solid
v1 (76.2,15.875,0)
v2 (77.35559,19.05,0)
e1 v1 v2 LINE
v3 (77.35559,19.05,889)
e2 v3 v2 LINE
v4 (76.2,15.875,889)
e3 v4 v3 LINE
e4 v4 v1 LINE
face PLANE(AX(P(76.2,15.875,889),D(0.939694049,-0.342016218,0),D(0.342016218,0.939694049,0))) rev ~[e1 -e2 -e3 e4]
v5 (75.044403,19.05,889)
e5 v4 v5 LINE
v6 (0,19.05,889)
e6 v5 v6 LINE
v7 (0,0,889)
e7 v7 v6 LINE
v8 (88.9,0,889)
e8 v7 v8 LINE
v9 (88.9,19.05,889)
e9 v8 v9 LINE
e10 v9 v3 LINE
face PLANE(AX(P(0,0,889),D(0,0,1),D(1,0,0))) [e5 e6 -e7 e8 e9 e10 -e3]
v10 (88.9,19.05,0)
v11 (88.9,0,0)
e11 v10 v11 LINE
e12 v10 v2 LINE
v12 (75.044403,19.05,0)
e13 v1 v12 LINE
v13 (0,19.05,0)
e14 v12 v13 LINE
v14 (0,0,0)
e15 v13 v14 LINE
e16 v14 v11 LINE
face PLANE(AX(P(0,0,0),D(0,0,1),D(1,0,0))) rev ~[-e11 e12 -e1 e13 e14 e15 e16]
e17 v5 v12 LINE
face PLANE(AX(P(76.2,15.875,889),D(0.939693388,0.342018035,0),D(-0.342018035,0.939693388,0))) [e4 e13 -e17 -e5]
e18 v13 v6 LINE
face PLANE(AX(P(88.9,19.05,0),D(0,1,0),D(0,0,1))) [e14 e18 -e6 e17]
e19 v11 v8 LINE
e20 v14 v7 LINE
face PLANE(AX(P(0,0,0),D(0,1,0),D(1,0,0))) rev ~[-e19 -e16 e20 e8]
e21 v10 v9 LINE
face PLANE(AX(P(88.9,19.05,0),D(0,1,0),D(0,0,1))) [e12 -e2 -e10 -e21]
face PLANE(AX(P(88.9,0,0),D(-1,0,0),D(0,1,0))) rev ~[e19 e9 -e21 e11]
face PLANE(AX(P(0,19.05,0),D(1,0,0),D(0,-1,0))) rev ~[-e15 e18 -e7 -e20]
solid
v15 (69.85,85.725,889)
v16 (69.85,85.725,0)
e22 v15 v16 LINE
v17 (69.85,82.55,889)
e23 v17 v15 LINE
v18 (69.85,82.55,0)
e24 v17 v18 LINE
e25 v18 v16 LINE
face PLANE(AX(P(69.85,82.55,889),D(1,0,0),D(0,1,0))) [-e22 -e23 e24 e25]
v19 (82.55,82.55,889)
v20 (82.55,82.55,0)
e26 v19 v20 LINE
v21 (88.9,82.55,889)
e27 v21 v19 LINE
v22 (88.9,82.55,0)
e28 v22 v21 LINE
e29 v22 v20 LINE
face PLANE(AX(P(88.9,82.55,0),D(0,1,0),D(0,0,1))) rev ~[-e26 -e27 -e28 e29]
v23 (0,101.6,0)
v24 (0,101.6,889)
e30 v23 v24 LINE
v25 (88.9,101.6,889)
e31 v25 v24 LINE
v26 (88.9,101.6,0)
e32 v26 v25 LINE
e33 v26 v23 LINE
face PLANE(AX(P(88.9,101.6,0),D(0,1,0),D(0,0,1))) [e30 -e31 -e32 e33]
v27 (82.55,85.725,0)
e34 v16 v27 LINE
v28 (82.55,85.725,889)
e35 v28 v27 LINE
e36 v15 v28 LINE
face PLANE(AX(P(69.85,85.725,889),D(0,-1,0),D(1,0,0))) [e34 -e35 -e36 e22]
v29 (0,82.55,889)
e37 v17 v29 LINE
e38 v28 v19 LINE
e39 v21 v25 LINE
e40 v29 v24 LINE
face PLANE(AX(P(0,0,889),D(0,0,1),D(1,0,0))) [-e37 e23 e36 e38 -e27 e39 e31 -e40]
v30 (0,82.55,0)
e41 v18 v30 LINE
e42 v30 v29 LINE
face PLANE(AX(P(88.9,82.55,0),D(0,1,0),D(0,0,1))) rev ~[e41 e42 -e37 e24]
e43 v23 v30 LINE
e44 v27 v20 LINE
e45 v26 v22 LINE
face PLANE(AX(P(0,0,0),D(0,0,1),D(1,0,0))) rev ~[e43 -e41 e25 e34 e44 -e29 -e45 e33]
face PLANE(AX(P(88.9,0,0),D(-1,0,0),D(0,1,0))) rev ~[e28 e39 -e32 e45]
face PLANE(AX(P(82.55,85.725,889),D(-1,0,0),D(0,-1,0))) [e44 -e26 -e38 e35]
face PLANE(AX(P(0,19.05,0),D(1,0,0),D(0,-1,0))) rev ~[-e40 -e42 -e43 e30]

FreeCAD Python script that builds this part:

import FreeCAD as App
import Part
import Sketcher
from FreeCAD import Vector
Q = App.Units.Quantity


def add_polygon(sketch, points):
    """Adds a closed chain of lines whose ends are joined by coincident constraints."""
    first, n = sketch.GeometryCount, len(points)
    for a, b in zip(points, points[1:] + points[:1]):
        sketch.addGeometry(Part.LineSegment(App.Vector(*a, 0), App.Vector(*b, 0)), False)
    for i in range(n):
        sketch.addConstraint(Sketcher.Constraint("Coincident", first + i, 2, first + (i + 1) % n, 1))

doc = App.newDocument("Part")
body = doc.addObject("PartDesign::Body", "Body")
body.AllowCompound = True

# Sketch on XY plane
sketch1 = doc.addObject("Sketcher::SketchObject", "Sketch")
body.addObject(sketch1)
sketch1.AttachmentSupport = (doc.XY_Plane, [""])
sketch1.MapMode = "FlatFace"
add_polygon(sketch1, [(0, 19), (0, 0), (89, 0), (89, 19)])  # lines 0-3
sketch1.addConstraint([
    Sketcher.Constraint("Vertical", 0),
    Sketcher.Constraint("Horizontal", 1),
    Sketcher.Constraint("Vertical", 2),
    Sketcher.Constraint("Horizontal", 3),
    Sketcher.Constraint("Coincident", 0, 2, -1, 1),
    Sketcher.Constraint("DistanceX", 1, 1, 1, 2, Q("3.5 in")),
    Sketcher.Constraint("DistanceY", 0, 2, 0, 1, Q("0.75 in")),
])
pad1 = doc.addObject("PartDesign::Pad", "Pad")
body.addObject(pad1)
pad1.Profile = sketch1
pad1.Length = Q("35 in")

# Sketch on XZ plane
sketch2 = doc.addObject("Sketcher::SketchObject", "Sketch001")
body.addObject(sketch2)
sketch2.AttachmentSupport = (doc.XZ_Plane, [""])
sketch2.MapMode = "FlatFace"
sketch2.AttachmentOffset = App.Placement(Vector(0, 0, -0.75 * 25.4), App.Rotation())
add_polygon(sketch2, [(89, 889), (89, 0), (0, 0), (0, 889)])  # lines 0-3
sketch2.addConstraint([
    Sketcher.Constraint("Vertical", 0),
    Sketcher.Constraint("Horizontal", 1),
    Sketcher.Constraint("Vertical", 2),
    Sketcher.Constraint("Horizontal", 3),
    Sketcher.Constraint("Coincident", 1, 2, -1, 1),
    Sketcher.Constraint("DistanceY", 0, 2, 0, 1, Q("35 in")),
    Sketcher.Constraint("DistanceX", 1, 2, 1, 1, Q("3.5 in")),
])
pad2 = doc.addObject("PartDesign::Pad", "Pad001")
body.addObject(pad2)
pad2.Profile = sketch2
pad2.Length = Q("5 in")
pad2.Reversed = True

# Sketch on YZ plane
sketch3 = doc.addObject("Sketcher::SketchObject", "Sketch002")
body.addObject(sketch3)
sketch3.AttachmentSupport = (doc.YZ_Plane, [""])
sketch3.MapMode = "FlatFace"
sketch3.AttachmentOffset = App.Placement(Vector(0, 0, 3.5 * 25.4), App.Rotation())
add_polygon(sketch3, [(19, 889), (19, 0), (83, 0), (83, 889)])  # lines 0-3
add_polygon(sketch3, [(102, 889), (102, 0), (146, 0), (146, 889)])  # lines 4-7
sketch3.addConstraint([
    Sketcher.Constraint("Vertical", 0),
    Sketcher.Constraint("Horizontal", 1),
    Sketcher.Constraint("Vertical", 2),
    Sketcher.Constraint("Horizontal", 3),
    Sketcher.Constraint("Vertical", 4),
    Sketcher.Constraint("Horizontal", 5),
    Sketcher.Constraint("Vertical", 6),
    Sketcher.Constraint("Horizontal", 7),
    Sketcher.Constraint("PointOnObject", 0, 2, -1),
    Sketcher.Constraint("PointOnObject", 4, 2, -1),
    Sketcher.Constraint("Horizontal", 3, 2, 6, 2),
    Sketcher.Constraint("DistanceY", 0, 2, 0, 1, Q("35 in")),
    Sketcher.Constraint("DistanceX", -1, 1, 4, 2, Q("4 in")),
    Sketcher.Constraint("DistanceX", -1, 1, 0, 2, Q("0.75 in")),
    Sketcher.Constraint("DistanceX", 1, 2, 4, 2, Q("0.75 in")),
    Sketcher.Constraint("DistanceX", 0, 2, 5, 2, Q("5 in")),
])
pocket1 = doc.addObject("PartDesign::Pocket", "Pocket")
body.addObject(pocket1)
pocket1.Profile = sketch3
pocket1.Length = Q("5 in")

# Sketch on XY plane
sketch4 = doc.addObject("Sketcher::SketchObject", "Sketch003")
body.addObject(sketch4)
sketch4.AttachmentSupport = (doc.XY_Plane, [""])
sketch4.MapMode = "FlatFace"
sketch4.AttachmentOffset = App.Placement(Vector(0, 0, 35 * 25.4), App.Rotation())
add_polygon(sketch4, [(69.8, 85.7), (69.8, 82.5), (82.5, 82.5), (82.5, 85.7)])  # lines 0-3
sketch4.addConstraint([
    Sketcher.Constraint("Vertical", 0),
    Sketcher.Constraint("Horizontal", 1),
    Sketcher.Constraint("Vertical", 2),
    Sketcher.Constraint("Horizontal", 3),
    Sketcher.Constraint("DistanceX", 1, 1, 1, 2, Q("0.5 in")),
    Sketcher.Constraint("DistanceY", 0, 2, 0, 1, Q("0.125 in")),
    Sketcher.Constraint("DistanceX", -1, 1, 0, 2, Q("2.75 in")),
    Sketcher.Constraint("DistanceY", -1, 1, 0, 2, Q("3.25 in")),
])
pocket2 = doc.addObject("PartDesign::Pocket", "Pocket001")
body.addObject(pocket2)
pocket2.Profile = sketch4
pocket2.Type = "ThroughAll"

# Sketch on XY plane
sketch5 = doc.addObject("Sketcher::SketchObject", "Sketch004")
body.addObject(sketch5)
sketch5.AttachmentSupport = (doc.XY_Plane, [""])
sketch5.MapMode = "FlatFace"
sketch5.AttachmentOffset = App.Placement(Vector(0, 0, 35 * 25.4), App.Rotation())
add_polygon(sketch5, [(75, 19.1), (76.2, 15.9), (77.4, 19.1)])  # lines 0-2
sketch5.addConstraint([
    Sketcher.Constraint("Horizontal", 2),
    Sketcher.Constraint("Equal", 0, 1),
    Sketcher.Constraint("DistanceY", -1, 1, 1, 2, Q("0.75 in")),
    Sketcher.Constraint("DistanceX", -1, 1, 0, 2, Q("3 in")),
    Sketcher.Constraint("Angle", 0, Q("-70.0001 deg")),
    Sketcher.Constraint("DistanceY", 0, 2, 1, 2, Q("0.125 in")),
])
pocket3 = doc.addObject("PartDesign::Pocket", "Pocket002")
body.addObject(pocket3)
pocket3.Profile = sketch5
pocket3.Type = "ThroughAll"

doc.recompute()
